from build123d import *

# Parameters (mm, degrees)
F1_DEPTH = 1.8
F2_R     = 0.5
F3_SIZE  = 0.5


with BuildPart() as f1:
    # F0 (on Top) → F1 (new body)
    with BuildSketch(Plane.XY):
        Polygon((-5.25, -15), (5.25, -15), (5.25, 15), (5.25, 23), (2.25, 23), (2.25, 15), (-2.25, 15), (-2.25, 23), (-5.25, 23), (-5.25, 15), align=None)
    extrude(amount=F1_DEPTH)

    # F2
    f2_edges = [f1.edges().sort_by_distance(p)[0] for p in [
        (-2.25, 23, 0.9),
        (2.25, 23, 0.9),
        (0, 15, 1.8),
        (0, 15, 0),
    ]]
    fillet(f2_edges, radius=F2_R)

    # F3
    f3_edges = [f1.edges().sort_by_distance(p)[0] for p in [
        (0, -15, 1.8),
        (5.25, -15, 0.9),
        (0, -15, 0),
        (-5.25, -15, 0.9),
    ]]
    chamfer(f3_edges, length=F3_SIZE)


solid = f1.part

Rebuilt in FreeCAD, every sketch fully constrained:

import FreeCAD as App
import Part
import Sketcher

V = App.Vector


def edges_at(feature, points):
    """Names of the edges that pass closest to the given points."""
    edges = feature.Shape.Edges
    near = lambda p: min(range(len(edges)), key=lambda i: edges[i].distToShape(Part.Vertex(*p))[0])
    return sorted({f"Edge{near(p) + 1}" for p in points})


def add_polygon(sketch, points):
    """Adds a closed chain of lines whose ends are joined by coincident constraints."""
    first, n = sketch.GeometryCount, len(points)
    for a, b in zip(points, points[1:] + points[:1]):
        sketch.addGeometry(Part.LineSegment(App.Vector(*a, 0), App.Vector(*b, 0)), False)
    for i in range(n):
        sketch.addConstraint(Sketcher.Constraint("Coincident", first + i, 2, first + (i + 1) % n, 1))

doc = App.newDocument("Part")
body = doc.addObject("PartDesign::Body", "Body")

sketch1 = body.newObject("Sketcher::SketchObject", "Sketch")
sketch1.AttachmentSupport = (doc.getObject("XY_Plane"), [""])
sketch1.MapMode = "FlatFace"
add_polygon(sketch1, [(-5.25, -15), (5.25, -15), (5.25, 23), (2.25, 23), (2.25, 15), (-2.25, 15), (-2.25, 23), (-5.25, 23)])
sketch1.addConstraint([
    Sketcher.Constraint("Horizontal", 0),
    Sketcher.Constraint("Vertical", 1),
    Sketcher.Constraint("Horizontal", 2),
    Sketcher.Constraint("Vertical", 3),
    Sketcher.Constraint("Horizontal", 4),
    Sketcher.Constraint("Vertical", 5),
    Sketcher.Constraint("Horizontal", 6),
    Sketcher.Constraint("Vertical", 7),
    Sketcher.Constraint("Symmetric", 2, 2, 5, 2, -2),
    Sketcher.Constraint("Equal", 2, 6),
    Sketcher.Constraint("DistanceX", 2, 2, 2, 1, 3.0),
    Sketcher.Constraint("DistanceY", 1, 1, 1, 2, 38.0),
    Sketcher.Constraint("DistanceY", 3, 2, 3, 1, 8.0),
    Sketcher.Constraint("DistanceX", 0, 1, 0, 2, 10.5),
    Sketcher.Constraint("DistanceY", 0, 2, -1, 1, 15.0),
])
pad1 = body.newObject("PartDesign::Pad", "Pad")
pad1.Profile = sketch1
pad1.Length = 1.8
doc.recompute()

fillet = body.newObject("PartDesign::Fillet", "Fillet")
fillet.Base = (pad1, edges_at(pad1, [
    (-2.25, 23, 0.9),
    (2.25, 23, 0.9),
    (0, 15, 1.8),
    (0, 15, 0),
]))
fillet.Radius = 0.5
doc.recompute()

chamfer = body.newObject("PartDesign::Chamfer", "Chamfer")
chamfer.Base = (fillet, edges_at(fillet, [
    (0, -15, 1.8),
    (5.25, -15, 0.9),
    (0, -15, 0),
    (-5.25, -15, 0.9),
]))
chamfer.Size = 0.5

doc.recompute()
